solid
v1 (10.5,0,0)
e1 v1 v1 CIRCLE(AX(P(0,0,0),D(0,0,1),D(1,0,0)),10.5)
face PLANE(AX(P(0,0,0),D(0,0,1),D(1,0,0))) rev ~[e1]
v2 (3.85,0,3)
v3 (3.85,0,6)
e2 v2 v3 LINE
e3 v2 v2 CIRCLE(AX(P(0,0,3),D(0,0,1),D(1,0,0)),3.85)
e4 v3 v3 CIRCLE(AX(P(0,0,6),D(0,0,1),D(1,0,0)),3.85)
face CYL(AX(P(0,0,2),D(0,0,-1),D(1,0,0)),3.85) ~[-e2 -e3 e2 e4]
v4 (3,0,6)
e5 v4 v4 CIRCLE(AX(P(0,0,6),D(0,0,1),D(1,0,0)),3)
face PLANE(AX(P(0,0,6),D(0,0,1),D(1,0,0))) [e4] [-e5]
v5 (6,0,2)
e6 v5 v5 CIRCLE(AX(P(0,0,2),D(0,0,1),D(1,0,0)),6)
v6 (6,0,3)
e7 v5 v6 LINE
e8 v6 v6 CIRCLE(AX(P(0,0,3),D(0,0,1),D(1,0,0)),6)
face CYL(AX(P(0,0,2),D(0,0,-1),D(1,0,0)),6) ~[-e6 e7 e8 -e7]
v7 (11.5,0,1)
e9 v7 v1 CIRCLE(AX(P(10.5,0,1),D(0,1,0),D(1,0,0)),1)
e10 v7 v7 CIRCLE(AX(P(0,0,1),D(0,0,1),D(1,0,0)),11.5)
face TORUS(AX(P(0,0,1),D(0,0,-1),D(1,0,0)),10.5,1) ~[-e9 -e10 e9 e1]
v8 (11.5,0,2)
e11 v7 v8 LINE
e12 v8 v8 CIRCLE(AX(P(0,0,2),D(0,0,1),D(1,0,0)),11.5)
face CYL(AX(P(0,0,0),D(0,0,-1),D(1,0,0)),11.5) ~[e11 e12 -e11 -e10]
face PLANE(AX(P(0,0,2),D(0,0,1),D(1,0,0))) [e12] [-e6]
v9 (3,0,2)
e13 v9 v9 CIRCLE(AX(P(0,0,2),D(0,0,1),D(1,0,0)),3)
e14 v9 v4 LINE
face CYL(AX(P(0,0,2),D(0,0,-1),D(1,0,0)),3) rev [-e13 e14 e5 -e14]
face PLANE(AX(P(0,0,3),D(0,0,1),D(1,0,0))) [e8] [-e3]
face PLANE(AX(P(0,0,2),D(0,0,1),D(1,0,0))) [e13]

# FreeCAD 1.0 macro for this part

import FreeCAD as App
import Part
import Sketcher
from FreeCAD import Vector


def edges_at(feature, points):
    """Names of the edges that pass closest to the given points."""
    edges = feature.Shape.Edges
    near = lambda p: min(range(len(edges)), key=lambda i: edges[i].distToShape(Part.Vertex(*p))[0])
    return sorted({f"Edge{near(p) + 1}" for p in points})

doc = App.newDocument("Part")
body = doc.addObject("PartDesign::Body", "Body")

sketch1 = body.newObject("Sketcher::SketchObject", "Sketch")
sketch1.AttachmentSupport = (doc.getObject("XY_Plane"), [""])
sketch1.MapMode = "FlatFace"
sketch1.addGeometry(Part.Circle(Vector(0, 0, 0), Vector(0, 0, 1), 11.5), False)
sketch1.addConstraint(Sketcher.Constraint("Coincident", 0, 3, -1, 1))
sketch1.addConstraint(Sketcher.Constraint("Diameter", 0, 23.0))
pad1 = body.newObject("PartDesign::Pad", "Pad")
pad1.Profile = sketch1
pad1.Length = 2
doc.recompute()

fillet = body.newObject("PartDesign::Fillet", "Fillet")
fillet.Base = (pad1, edges_at(pad1, [(-11.5, 0, 0)]))
fillet.Radius = 1

sketch2 = body.newObject("Sketcher::SketchObject", "Sketch001")
sketch2.AttachmentSupport = (doc.getObject("XY_Plane"), [""])
sketch2.MapMode = "FlatFace"
sketch2.AttachmentOffset = App.Placement(Vector(0, 0, 2), App.Rotation())
sketch2.addGeometry(Part.Circle(Vector(0, 0, 0), Vector(0, 0, 1), 3.85), False)
sketch2.addGeometry(Part.Circle(Vector(0, 0, 0), Vector(0, 0, 1), 3), False)
sketch2.addConstraint(Sketcher.Constraint("Coincident", 0, 3, -1, 1))
sketch2.addConstraint(Sketcher.Constraint("Coincident", 1, 3, -1, 1))
sketch2.addConstraint(Sketcher.Constraint("Diameter", 1, 6.0))
sketch2.addConstraint(Sketcher.Constraint("Diameter", 0, 7.7))
pad2 = body.newObject("PartDesign::Pad", "Pad001")
pad2.Profile = sketch2
pad2.Length = 4

sketch3 = body.newObject("Sketcher::SketchObject", "Sketch002")
sketch3.AttachmentSupport = (doc.getObject("XY_Plane"), [""])
sketch3.MapMode = "FlatFace"
sketch3.AttachmentOffset = App.Placement(Vector(0, 0, 2), App.Rotation())
sketch3.addGeometry(Part.Circle(Vector(0, 0, 0), Vector(0, 0, 1), 6), False)
sketch3.addGeometry(Part.Circle(Vector(0, 0, 0), Vector(0, 0, 1), 3.85), False)
sketch3.addConstraint(Sketcher.Constraint("Coincident", 0, 3, -1, 1))
sketch3.addConstraint(Sketcher.Constraint("Coincident", 1, 3, -1, 1))
sketch3.addConstraint(Sketcher.Constraint("Diameter", 0, 12.0))
sketch3.addConstraint(Sketcher.Constraint("Diameter", 1, 7.7))
pad3 = body.newObject("PartDesign::Pad", "Pad002")
pad3.Profile = sketch3
pad3.Length = 1

doc.recompute()
